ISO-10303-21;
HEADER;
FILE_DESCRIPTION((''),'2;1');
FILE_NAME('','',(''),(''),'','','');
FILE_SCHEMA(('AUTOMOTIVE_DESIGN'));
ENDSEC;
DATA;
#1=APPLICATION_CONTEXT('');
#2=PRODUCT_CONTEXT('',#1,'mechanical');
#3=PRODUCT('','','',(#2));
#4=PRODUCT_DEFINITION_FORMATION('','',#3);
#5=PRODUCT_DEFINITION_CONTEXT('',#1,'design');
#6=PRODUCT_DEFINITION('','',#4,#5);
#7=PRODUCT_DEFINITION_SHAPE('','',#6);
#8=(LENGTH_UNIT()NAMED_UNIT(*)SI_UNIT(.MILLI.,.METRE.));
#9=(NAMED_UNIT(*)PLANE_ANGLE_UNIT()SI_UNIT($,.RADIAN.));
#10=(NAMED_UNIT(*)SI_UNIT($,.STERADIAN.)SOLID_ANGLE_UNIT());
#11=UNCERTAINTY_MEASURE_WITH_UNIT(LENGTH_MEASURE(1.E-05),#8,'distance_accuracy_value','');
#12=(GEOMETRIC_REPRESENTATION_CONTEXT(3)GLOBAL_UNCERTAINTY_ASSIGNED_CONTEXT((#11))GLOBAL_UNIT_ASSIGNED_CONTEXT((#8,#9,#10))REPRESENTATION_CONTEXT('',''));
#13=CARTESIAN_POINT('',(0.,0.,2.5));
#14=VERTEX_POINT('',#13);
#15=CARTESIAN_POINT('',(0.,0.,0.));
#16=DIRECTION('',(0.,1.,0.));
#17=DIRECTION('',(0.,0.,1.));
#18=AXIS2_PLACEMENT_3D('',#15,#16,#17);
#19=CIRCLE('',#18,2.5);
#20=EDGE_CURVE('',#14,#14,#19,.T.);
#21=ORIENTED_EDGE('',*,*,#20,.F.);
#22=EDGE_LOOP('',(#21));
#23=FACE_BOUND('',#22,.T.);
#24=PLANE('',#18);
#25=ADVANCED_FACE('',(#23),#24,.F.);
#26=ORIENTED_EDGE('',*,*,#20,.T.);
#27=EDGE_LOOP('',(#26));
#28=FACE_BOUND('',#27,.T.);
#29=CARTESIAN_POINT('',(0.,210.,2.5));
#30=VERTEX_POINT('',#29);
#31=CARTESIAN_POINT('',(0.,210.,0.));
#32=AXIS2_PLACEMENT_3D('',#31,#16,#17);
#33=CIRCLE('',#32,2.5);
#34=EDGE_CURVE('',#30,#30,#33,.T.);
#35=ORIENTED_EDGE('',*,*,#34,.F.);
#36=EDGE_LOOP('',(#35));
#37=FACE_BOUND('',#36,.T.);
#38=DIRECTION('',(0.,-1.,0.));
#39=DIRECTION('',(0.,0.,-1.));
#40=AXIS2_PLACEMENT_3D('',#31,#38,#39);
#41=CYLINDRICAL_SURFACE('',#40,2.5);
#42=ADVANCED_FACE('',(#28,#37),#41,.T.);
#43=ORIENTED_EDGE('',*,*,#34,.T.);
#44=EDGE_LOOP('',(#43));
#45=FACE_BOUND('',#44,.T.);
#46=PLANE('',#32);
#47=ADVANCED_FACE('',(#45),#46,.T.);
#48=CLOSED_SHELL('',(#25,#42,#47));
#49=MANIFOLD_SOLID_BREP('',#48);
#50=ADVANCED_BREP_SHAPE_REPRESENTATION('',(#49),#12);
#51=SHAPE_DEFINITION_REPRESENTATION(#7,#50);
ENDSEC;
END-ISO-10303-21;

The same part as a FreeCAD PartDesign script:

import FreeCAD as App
import Part
import Sketcher
from FreeCAD import Vector
Q = App.Units.Quantity

doc = App.newDocument("Part")
params = doc.addObject("Spreadsheet::Sheet", "Params")
for row, (alias, value) in enumerate([
    ("sketch1_diameter", "5 mm"),
    ("pad1_length", "210 mm"),
], start=1):
    params.set(f"A{row}", alias)
    params.set(f"B{row}", "=" + value)
    params.setAlias(f"B{row}", alias)

body = doc.addObject("PartDesign::Body", "Body")

sketch1 = body.newObject("Sketcher::SketchObject", "Sketch")
sketch1.AttachmentSupport = (doc.getObject("XZ_Plane"), [""])
sketch1.MapMode = "FlatFace"
sketch1.addGeometry(Part.Circle(Vector(0, 0, 0), Vector(0, 0, 1), 2.5), False)
sketch1.addConstraint([
    Sketcher.Constraint("Coincident", 0, 3, -1, 1),
    Sketcher.Constraint("Diameter", 0, Q("5 mm")),
])
sketch1.setExpression("Constraints[1]", "Params.sketch1_diameter")
pad1 = body.newObject("PartDesign::Pad", "Pad")
pad1.Profile = sketch1
pad1.setExpression("Length", "Params.pad1_length")
pad1.Reversed = True

doc.recompute()
